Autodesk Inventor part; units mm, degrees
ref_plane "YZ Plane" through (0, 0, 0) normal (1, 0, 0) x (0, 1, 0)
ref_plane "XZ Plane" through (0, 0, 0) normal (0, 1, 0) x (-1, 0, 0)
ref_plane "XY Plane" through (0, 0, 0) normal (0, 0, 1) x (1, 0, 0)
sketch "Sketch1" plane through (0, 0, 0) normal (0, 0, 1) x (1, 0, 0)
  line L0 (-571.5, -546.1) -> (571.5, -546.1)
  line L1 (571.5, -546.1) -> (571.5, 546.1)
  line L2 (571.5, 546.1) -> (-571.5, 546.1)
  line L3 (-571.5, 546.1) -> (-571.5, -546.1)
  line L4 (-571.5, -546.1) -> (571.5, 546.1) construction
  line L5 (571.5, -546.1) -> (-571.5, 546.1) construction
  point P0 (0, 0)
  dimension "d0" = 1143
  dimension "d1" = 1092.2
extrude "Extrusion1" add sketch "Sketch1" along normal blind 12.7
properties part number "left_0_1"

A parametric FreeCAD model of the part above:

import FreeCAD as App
import Part
import Sketcher
Q = App.Units.Quantity


def add_polygon(sketch, points):
    """Adds a closed chain of lines whose ends are joined by coincident constraints."""
    first, n = sketch.GeometryCount, len(points)
    for a, b in zip(points, points[1:] + points[:1]):
        sketch.addGeometry(Part.LineSegment(App.Vector(*a, 0), App.Vector(*b, 0)), False)
    for i in range(n):
        sketch.addConstraint(Sketcher.Constraint("Coincident", first + i, 2, first + (i + 1) % n, 1))

doc = App.newDocument("Part")
body = doc.addObject("PartDesign::Body", "Body")

sketch1 = body.newObject("Sketcher::SketchObject", "Sketch")
sketch1.AttachmentSupport = (doc.getObject("XY_Plane"), [""])
sketch1.MapMode = "FlatFace"
add_polygon(sketch1, [(-571.5, 546.1), (-571.5, -546.1), (571.5, -546.1), (571.5, 546.1)])
sketch1.addConstraint(Sketcher.Constraint("Vertical", 0))
sketch1.addConstraint(Sketcher.Constraint("Horizontal", 1))
sketch1.addConstraint(Sketcher.Constraint("Vertical", 2))
sketch1.addConstraint(Sketcher.Constraint("Horizontal", 3))
sketch1.addConstraint(Sketcher.Constraint("Symmetric", 0, 2, 2, 2, -1, 1))
sketch1.addConstraint(Sketcher.Constraint("DistanceX", 1, 1, 1, 2, Q("45 in")))
sketch1.addConstraint(Sketcher.Constraint("DistanceY", 0, 2, 0, 1, Q("43 in")))
pad1 = body.newObject("PartDesign::Pad", "Pad")
pad1.Profile = sketch1
pad1.Length = Q("0.5 in")

doc.recompute()
